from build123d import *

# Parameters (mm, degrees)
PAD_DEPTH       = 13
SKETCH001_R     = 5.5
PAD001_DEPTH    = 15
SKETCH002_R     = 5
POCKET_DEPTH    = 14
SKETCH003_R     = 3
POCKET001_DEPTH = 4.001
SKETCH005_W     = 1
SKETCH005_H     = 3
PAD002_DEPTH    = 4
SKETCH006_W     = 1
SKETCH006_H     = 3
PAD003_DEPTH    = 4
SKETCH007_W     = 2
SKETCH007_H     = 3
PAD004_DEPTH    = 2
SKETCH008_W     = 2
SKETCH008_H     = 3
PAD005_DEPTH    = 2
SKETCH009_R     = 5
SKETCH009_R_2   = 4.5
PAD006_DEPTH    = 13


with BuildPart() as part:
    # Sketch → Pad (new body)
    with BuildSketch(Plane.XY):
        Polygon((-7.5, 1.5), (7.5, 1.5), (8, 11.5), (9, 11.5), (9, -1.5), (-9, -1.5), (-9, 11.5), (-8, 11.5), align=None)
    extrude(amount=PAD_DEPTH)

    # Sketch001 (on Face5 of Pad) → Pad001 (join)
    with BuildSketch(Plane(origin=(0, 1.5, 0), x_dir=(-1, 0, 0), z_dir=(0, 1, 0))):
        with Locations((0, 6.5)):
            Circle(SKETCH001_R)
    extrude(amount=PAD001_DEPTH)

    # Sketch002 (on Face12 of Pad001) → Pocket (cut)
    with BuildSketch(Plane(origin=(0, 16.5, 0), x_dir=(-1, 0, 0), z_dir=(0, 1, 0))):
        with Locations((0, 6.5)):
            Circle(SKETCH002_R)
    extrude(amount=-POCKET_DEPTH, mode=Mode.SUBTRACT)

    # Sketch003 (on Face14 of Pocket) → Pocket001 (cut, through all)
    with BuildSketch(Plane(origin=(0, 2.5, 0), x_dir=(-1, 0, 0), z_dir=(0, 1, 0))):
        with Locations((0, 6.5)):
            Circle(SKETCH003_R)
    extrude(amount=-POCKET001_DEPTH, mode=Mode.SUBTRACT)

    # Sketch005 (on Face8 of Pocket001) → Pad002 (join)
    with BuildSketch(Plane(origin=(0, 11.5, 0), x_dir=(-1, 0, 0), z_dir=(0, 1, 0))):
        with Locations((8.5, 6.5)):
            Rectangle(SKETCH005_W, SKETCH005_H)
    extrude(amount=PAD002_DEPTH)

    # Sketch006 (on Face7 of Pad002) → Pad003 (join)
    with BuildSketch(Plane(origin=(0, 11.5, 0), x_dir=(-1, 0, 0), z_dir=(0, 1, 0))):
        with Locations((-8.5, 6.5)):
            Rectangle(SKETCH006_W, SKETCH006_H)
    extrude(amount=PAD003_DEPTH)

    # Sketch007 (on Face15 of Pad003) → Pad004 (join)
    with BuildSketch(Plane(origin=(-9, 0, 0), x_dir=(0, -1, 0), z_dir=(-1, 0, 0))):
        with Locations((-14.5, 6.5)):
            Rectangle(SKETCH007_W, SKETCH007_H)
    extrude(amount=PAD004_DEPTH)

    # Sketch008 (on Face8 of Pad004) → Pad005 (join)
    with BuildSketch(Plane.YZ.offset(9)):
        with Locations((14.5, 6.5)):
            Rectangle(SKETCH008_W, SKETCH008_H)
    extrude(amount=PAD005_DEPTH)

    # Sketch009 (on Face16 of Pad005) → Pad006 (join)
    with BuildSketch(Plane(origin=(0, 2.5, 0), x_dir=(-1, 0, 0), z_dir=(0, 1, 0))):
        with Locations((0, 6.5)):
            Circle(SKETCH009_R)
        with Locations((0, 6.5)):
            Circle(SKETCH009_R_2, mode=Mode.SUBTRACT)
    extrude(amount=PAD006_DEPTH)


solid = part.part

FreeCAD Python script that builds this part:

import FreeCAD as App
import Part
import Sketcher

doc = App.newDocument("Part")
body = doc.addObject("PartDesign::Body", "Body")

# Sketch on XY plane
sketch1 = body.newObject("Sketcher::SketchObject", "Sketch")
sketch1.AttachmentSupport = (doc.getObject("XY_Plane"), [""])
sketch1.MapMode = "FlatFace"
sketch1.addGeometry([
    Part.LineSegment(App.Vector(7.5, 1.5, 0), App.Vector(-7.5, 1.5, 0)),  # 0
    Part.LineSegment(App.Vector(-7.5, 1.5, 0), App.Vector(-8, 11.5, 0)),  # 1
    Part.LineSegment(App.Vector(-8, 11.5, 0), App.Vector(-9, 11.5, 0)),  # 2
    Part.LineSegment(App.Vector(-9, 11.5, 0), App.Vector(-9, -1.5, 0)),  # 3
    Part.LineSegment(App.Vector(-9, -1.5, 0), App.Vector(9, -1.5, 0)),  # 4
    Part.LineSegment(App.Vector(9, -1.5, 0), App.Vector(9, 11.5, 0)),  # 5
    Part.LineSegment(App.Vector(9, 11.5, 0), App.Vector(8, 11.5, 0)),  # 6
    Part.LineSegment(App.Vector(8, 11.5, 0), App.Vector(7.5, 1.5, 0)),  # 7
], False)
sketch1.addConstraint([
    Sketcher.Constraint("Coincident", 0, 2, 1, 1),
    Sketcher.Constraint("Coincident", 1, 2, 2, 1),
    Sketcher.Constraint("Coincident", 2, 2, 3, 1),
    Sketcher.Constraint("Coincident", 3, 2, 4, 1),
    Sketcher.Constraint("Coincident", 4, 2, 5, 1),
    Sketcher.Constraint("Coincident", 5, 2, 6, 1),
    Sketcher.Constraint("Coincident", 6, 2, 7, 1),
    Sketcher.Constraint("Coincident", 7, 2, 0, 1),
    Sketcher.Constraint("Horizontal", 0),
    Sketcher.Constraint("Horizontal", 2),
    Sketcher.Constraint("Vertical", 3),
    Sketcher.Constraint("Horizontal", 4),
    Sketcher.Constraint("Vertical", 5),
    Sketcher.Constraint("Horizontal", 6),
    Sketcher.Constraint("Symmetric", 2, 2, 5, 2, -2),
    Sketcher.Constraint("Equal", 2, 6),
    Sketcher.Constraint("Equal", 1, 7),
    Sketcher.Constraint("DistanceX", 0, 2, 0, 1, 15.0),
    Sketcher.Constraint("DistanceX", 2, 2, 2, 1, 1.0),
    Sketcher.Constraint("DistanceX", 4, 1, 4, 2, 18.0),
    Sketcher.Constraint("DistanceY", 3, 2, 3, 1, 13.0),
    Sketcher.Constraint("DistanceY", 0, 2, 1, 2, 10.0),
    Sketcher.Constraint("DistanceY", -1, 1, 0, 2, 1.5),
])
pad1 = body.newObject("PartDesign::Pad", "Pad")
pad1.Profile = sketch1
pad1.Length = 13

# Sketch on XZ plane
sketch2 = body.newObject("Sketcher::SketchObject", "Sketch001")
sketch2.AttachmentSupport = (doc.getObject("XZ_Plane"), [""])
sketch2.MapMode = "FlatFace"
sketch2.AttachmentOffset = App.Placement(App.Vector(0, 0, -1.5), App.Rotation())
sketch2.addGeometry(Part.Circle(App.Vector(0, 6.5, 0), App.Vector(0, 0, 1), 5.5), False)
sketch2.addConstraint([
    Sketcher.Constraint("PointOnObject", 0, 3, -2),
    Sketcher.Constraint("Diameter", 0, 11.0),
    Sketcher.Constraint("DistanceY", -1, 1, 0, 3, 6.5),
])
pad2 = body.newObject("PartDesign::Pad", "Pad001")
pad2.Profile = sketch2
pad2.Length = 15
pad2.Reversed = True

# Sketch on XZ plane
sketch3 = body.newObject("Sketcher::SketchObject", "Sketch002")
sketch3.AttachmentSupport = (doc.getObject("XZ_Plane"), [""])
sketch3.MapMode = "FlatFace"
sketch3.AttachmentOffset = App.Placement(App.Vector(0, 0, -16.5), App.Rotation())
sketch3.addGeometry(Part.Circle(App.Vector(0, 6.5, 0), App.Vector(0, 0, 1), 5), False)
sketch3.addConstraint([
    Sketcher.Constraint("PointOnObject", 0, 3, -2),
    Sketcher.Constraint("Diameter", 0, 10.0),
    Sketcher.Constraint("DistanceY", -1, 1, 0, 3, 6.5),
])
pocket1 = body.newObject("PartDesign::Pocket", "Pocket")
pocket1.Profile = sketch3
pocket1.Length = 14
pocket1.Reversed = True

# Sketch on XZ plane
sketch4 = body.newObject("Sketcher::SketchObject", "Sketch003")
sketch4.AttachmentSupport = (doc.getObject("XZ_Plane"), [""])
sketch4.MapMode = "FlatFace"
sketch4.AttachmentOffset = App.Placement(App.Vector(0, 0, -2.5), App.Rotation())
sketch4.addGeometry(Part.Circle(App.Vector(0, 6.5, 0), App.Vector(0, 0, 1), 3), False)
sketch4.addConstraint([
    Sketcher.Constraint("PointOnObject", 0, 3, -2),
    Sketcher.Constraint("Diameter", 0, 6.0),
    Sketcher.Constraint("DistanceY", -1, 1, 0, 3, 6.5),
])
pocket2 = body.newObject("PartDesign::Pocket", "Pocket001")
pocket2.Profile = sketch4
pocket2.Type = "ThroughAll"
pocket2.Reversed = True

# Sketch on XZ plane
sketch5 = body.newObject("Sketcher::SketchObject", "Sketch004")
sketch5.AttachmentSupport = (doc.getObject("XZ_Plane"), [""])
sketch5.MapMode = "FlatFace"
sketch5.AttachmentOffset = App.Placement(App.Vector(0, 0, -11.5), App.Rotation())
sketch5.addGeometry([
    Part.LineSegment(App.Vector(-8, 8, 0), App.Vector(-8, 5, 0)),
    Part.LineSegment(App.Vector(-8, 5, 0), App.Vector(-9, 5, 0)),
    Part.LineSegment(App.Vector(-9, 5, 0), App.Vector(-9, 8, 0)),
    Part.LineSegment(App.Vector(-9, 8, 0), App.Vector(-8, 8, 0)),
], False)
sketch5.addConstraint([
    Sketcher.Constraint("Coincident", 0, 2, 1, 1),
    Sketcher.Constraint("Coincident", 1, 2, 2, 1),
    Sketcher.Constraint("Coincident", 2, 2, 3, 1),
    Sketcher.Constraint("Coincident", 3, 2, 0, 1),
    Sketcher.Constraint("Vertical", 0),
    Sketcher.Constraint("Horizontal", 1),
    Sketcher.Constraint("Vertical", 2),
    Sketcher.Constraint("Horizontal", 3),
    Sketcher.Constraint("DistanceX", 1, 2, 1, 1, 1.0),
    Sketcher.Constraint("DistanceY", 0, 2, 0, 1, 3.0),
    Sketcher.Constraint("DistanceX", 0, 2, -1, 1, 8.0),
    Sketcher.Constraint("DistanceY", -1, 1, 0, 2, 5.0),
])
pad3 = body.newObject("PartDesign::Pad", "Pad002")
pad3.Profile = sketch5
pad3.Length = 4
pad3.Reversed = True

# Sketch on XZ plane
sketch6 = body.newObject("Sketcher::SketchObject", "Sketch005")
sketch6.AttachmentSupport = (doc.getObject("XZ_Plane"), [""])
sketch6.MapMode = "FlatFace"
sketch6.AttachmentOffset = App.Placement(App.Vector(0, 0, -11.5), App.Rotation())
sketch6.addGeometry([
    Part.LineSegment(App.Vector(9, 8, 0), App.Vector(9, 5, 0)),
    Part.LineSegment(App.Vector(9, 5, 0), App.Vector(8, 5, 0)),
    Part.LineSegment(App.Vector(8, 5, 0), App.Vector(8, 8, 0)),
    Part.LineSegment(App.Vector(8, 8, 0), App.Vector(9, 8, 0)),
], False)
sketch6.addConstraint([
    Sketcher.Constraint("Coincident", 0, 2, 1, 1),
    Sketcher.Constraint("Coincident", 1, 2, 2, 1),
    Sketcher.Constraint("Coincident", 2, 2, 3, 1),
    Sketcher.Constraint("Coincident", 3, 2, 0, 1),
    Sketcher.Constraint("Vertical", 0),
    Sketcher.Constraint("Horizontal", 1),
    Sketcher.Constraint("Vertical", 2),
    Sketcher.Constraint("Horizontal", 3),
    Sketcher.Constraint("DistanceX", 1, 2, 1, 1, 1.0),
    Sketcher.Constraint("DistanceY", 0, 2, 0, 1, 3.0),
    Sketcher.Constraint("DistanceX", -1, 1, 0, 2, 9.0),
    Sketcher.Constraint("DistanceY", -1, 1, 0, 2, 5.0),
])
pad4 = body.newObject("PartDesign::Pad", "Pad003")
pad4.Profile = sketch6
pad4.Length = 4
pad4.Reversed = True

# Sketch on YZ plane
sketch7 = body.newObject("Sketcher::SketchObject", "Sketch006")
sketch7.AttachmentSupport = (doc.getObject("YZ_Plane"), [""])
sketch7.MapMode = "FlatFace"
sketch7.AttachmentOffset = App.Placement(App.Vector(0, 0, -9), App.Rotation())
sketch7.addGeometry([
    Part.LineSegment(App.Vector(15.5, 8, 0), App.Vector(15.5, 5, 0)),
    Part.LineSegment(App.Vector(15.5, 5, 0), App.Vector(13.5, 5, 0)),
    Part.LineSegment(App.Vector(13.5, 5, 0), App.Vector(13.5, 8, 0)),
    Part.LineSegment(App.Vector(13.5, 8, 0), App.Vector(15.5, 8, 0)),
], False)
sketch7.addConstraint([
    Sketcher.Constraint("Coincident", 0, 2, 1, 1),
    Sketcher.Constraint("Coincident", 1, 2, 2, 1),
    Sketcher.Constraint("Coincident", 2, 2, 3, 1),
    Sketcher.Constraint("Coincident", 3, 2, 0, 1),
    Sketcher.Constraint("Vertical", 0),
    Sketcher.Constraint("Horizontal", 1),
    Sketcher.Constraint("Vertical", 2),
    Sketcher.Constraint("Horizontal", 3),
    Sketcher.Constraint("DistanceX", 1, 2, 1, 1, 2.0),
    Sketcher.Constraint("DistanceY", 0, 2, 0, 1, 3.0),
    Sketcher.Constraint("DistanceY", -1, 1, 0, 2, 5.0),
    Sketcher.Constraint("DistanceX", -1, 1, 0, 2, 15.5),
])
pad5 = body.newObject("PartDesign::Pad", "Pad004")
pad5.Profile = sketch7
pad5.Length = 2
pad5.Reversed = True

# Sketch on YZ plane
sketch8 = body.newObject("Sketcher::SketchObject", "Sketch007")
sketch8.AttachmentSupport = (doc.getObject("YZ_Plane"), [""])
sketch8.MapMode = "FlatFace"
sketch8.AttachmentOffset = App.Placement(App.Vector(0, 0, 9), App.Rotation())
sketch8.addGeometry([
    Part.LineSegment(App.Vector(13.5, 8, 0), App.Vector(13.5, 5, 0)),
    Part.LineSegment(App.Vector(13.5, 5, 0), App.Vector(15.5, 5, 0)),
    Part.LineSegment(App.Vector(15.5, 5, 0), App.Vector(15.5, 8, 0)),
    Part.LineSegment(App.Vector(15.5, 8, 0), App.Vector(13.5, 8, 0)),
], False)
sketch8.addConstraint([
    Sketcher.Constraint("Coincident", 0, 2, 1, 1),
    Sketcher.Constraint("Coincident", 1, 2, 2, 1),
    Sketcher.Constraint("Coincident", 2, 2, 3, 1),
    Sketcher.Constraint("Coincident", 3, 2, 0, 1),
    Sketcher.Constraint("Vertical", 0),
    Sketcher.Constraint("Horizontal", 1),
    Sketcher.Constraint("Vertical", 2),
    Sketcher.Constraint("Horizontal", 3),
    Sketcher.Constraint("DistanceX", 1, 1, 1, 2, 2.0),
    Sketcher.Constraint("DistanceY", 0, 2, 0, 1, 3.0),
    Sketcher.Constraint("DistanceY", -1, 1, 0, 2, 5.0),
    Sketcher.Constraint("DistanceX", -1, 1, 0, 2, 13.5),
])
pad6 = body.newObject("PartDesign::Pad", "Pad005")
pad6.Profile = sketch8
pad6.Length = 2

# Sketch on XZ plane
sketch9 = body.newObject("Sketcher::SketchObject", "Sketch008")
sketch9.AttachmentSupport = (doc.getObject("XZ_Plane"), [""])
sketch9.MapMode = "FlatFace"
sketch9.AttachmentOffset = App.Placement(App.Vector(0, 0, -2.5), App.Rotation())
sketch9.addGeometry([
    Part.Circle(App.Vector(0, 6.5, 0), App.Vector(0, 0, 1), 5),
    Part.Circle(App.Vector(0, 6.5, 0), App.Vector(0, 0, 1), 4.5),
], False)
sketch9.addConstraint([
    Sketcher.Constraint("Coincident", 1, 3, 0, 3),
    Sketcher.Constraint("PointOnObject", 0, 3, -2),
    Sketcher.Constraint("Diameter", 0, 10.0),
    Sketcher.Constraint("Diameter", 1, 9.0),
    Sketcher.Constraint("DistanceY", -1, 1, 0, 3, 6.5),
])
pad7 = body.newObject("PartDesign::Pad", "Pad006")
pad7.Profile = sketch9
pad7.Length = 13
pad7.Reversed = True

doc.recompute()
